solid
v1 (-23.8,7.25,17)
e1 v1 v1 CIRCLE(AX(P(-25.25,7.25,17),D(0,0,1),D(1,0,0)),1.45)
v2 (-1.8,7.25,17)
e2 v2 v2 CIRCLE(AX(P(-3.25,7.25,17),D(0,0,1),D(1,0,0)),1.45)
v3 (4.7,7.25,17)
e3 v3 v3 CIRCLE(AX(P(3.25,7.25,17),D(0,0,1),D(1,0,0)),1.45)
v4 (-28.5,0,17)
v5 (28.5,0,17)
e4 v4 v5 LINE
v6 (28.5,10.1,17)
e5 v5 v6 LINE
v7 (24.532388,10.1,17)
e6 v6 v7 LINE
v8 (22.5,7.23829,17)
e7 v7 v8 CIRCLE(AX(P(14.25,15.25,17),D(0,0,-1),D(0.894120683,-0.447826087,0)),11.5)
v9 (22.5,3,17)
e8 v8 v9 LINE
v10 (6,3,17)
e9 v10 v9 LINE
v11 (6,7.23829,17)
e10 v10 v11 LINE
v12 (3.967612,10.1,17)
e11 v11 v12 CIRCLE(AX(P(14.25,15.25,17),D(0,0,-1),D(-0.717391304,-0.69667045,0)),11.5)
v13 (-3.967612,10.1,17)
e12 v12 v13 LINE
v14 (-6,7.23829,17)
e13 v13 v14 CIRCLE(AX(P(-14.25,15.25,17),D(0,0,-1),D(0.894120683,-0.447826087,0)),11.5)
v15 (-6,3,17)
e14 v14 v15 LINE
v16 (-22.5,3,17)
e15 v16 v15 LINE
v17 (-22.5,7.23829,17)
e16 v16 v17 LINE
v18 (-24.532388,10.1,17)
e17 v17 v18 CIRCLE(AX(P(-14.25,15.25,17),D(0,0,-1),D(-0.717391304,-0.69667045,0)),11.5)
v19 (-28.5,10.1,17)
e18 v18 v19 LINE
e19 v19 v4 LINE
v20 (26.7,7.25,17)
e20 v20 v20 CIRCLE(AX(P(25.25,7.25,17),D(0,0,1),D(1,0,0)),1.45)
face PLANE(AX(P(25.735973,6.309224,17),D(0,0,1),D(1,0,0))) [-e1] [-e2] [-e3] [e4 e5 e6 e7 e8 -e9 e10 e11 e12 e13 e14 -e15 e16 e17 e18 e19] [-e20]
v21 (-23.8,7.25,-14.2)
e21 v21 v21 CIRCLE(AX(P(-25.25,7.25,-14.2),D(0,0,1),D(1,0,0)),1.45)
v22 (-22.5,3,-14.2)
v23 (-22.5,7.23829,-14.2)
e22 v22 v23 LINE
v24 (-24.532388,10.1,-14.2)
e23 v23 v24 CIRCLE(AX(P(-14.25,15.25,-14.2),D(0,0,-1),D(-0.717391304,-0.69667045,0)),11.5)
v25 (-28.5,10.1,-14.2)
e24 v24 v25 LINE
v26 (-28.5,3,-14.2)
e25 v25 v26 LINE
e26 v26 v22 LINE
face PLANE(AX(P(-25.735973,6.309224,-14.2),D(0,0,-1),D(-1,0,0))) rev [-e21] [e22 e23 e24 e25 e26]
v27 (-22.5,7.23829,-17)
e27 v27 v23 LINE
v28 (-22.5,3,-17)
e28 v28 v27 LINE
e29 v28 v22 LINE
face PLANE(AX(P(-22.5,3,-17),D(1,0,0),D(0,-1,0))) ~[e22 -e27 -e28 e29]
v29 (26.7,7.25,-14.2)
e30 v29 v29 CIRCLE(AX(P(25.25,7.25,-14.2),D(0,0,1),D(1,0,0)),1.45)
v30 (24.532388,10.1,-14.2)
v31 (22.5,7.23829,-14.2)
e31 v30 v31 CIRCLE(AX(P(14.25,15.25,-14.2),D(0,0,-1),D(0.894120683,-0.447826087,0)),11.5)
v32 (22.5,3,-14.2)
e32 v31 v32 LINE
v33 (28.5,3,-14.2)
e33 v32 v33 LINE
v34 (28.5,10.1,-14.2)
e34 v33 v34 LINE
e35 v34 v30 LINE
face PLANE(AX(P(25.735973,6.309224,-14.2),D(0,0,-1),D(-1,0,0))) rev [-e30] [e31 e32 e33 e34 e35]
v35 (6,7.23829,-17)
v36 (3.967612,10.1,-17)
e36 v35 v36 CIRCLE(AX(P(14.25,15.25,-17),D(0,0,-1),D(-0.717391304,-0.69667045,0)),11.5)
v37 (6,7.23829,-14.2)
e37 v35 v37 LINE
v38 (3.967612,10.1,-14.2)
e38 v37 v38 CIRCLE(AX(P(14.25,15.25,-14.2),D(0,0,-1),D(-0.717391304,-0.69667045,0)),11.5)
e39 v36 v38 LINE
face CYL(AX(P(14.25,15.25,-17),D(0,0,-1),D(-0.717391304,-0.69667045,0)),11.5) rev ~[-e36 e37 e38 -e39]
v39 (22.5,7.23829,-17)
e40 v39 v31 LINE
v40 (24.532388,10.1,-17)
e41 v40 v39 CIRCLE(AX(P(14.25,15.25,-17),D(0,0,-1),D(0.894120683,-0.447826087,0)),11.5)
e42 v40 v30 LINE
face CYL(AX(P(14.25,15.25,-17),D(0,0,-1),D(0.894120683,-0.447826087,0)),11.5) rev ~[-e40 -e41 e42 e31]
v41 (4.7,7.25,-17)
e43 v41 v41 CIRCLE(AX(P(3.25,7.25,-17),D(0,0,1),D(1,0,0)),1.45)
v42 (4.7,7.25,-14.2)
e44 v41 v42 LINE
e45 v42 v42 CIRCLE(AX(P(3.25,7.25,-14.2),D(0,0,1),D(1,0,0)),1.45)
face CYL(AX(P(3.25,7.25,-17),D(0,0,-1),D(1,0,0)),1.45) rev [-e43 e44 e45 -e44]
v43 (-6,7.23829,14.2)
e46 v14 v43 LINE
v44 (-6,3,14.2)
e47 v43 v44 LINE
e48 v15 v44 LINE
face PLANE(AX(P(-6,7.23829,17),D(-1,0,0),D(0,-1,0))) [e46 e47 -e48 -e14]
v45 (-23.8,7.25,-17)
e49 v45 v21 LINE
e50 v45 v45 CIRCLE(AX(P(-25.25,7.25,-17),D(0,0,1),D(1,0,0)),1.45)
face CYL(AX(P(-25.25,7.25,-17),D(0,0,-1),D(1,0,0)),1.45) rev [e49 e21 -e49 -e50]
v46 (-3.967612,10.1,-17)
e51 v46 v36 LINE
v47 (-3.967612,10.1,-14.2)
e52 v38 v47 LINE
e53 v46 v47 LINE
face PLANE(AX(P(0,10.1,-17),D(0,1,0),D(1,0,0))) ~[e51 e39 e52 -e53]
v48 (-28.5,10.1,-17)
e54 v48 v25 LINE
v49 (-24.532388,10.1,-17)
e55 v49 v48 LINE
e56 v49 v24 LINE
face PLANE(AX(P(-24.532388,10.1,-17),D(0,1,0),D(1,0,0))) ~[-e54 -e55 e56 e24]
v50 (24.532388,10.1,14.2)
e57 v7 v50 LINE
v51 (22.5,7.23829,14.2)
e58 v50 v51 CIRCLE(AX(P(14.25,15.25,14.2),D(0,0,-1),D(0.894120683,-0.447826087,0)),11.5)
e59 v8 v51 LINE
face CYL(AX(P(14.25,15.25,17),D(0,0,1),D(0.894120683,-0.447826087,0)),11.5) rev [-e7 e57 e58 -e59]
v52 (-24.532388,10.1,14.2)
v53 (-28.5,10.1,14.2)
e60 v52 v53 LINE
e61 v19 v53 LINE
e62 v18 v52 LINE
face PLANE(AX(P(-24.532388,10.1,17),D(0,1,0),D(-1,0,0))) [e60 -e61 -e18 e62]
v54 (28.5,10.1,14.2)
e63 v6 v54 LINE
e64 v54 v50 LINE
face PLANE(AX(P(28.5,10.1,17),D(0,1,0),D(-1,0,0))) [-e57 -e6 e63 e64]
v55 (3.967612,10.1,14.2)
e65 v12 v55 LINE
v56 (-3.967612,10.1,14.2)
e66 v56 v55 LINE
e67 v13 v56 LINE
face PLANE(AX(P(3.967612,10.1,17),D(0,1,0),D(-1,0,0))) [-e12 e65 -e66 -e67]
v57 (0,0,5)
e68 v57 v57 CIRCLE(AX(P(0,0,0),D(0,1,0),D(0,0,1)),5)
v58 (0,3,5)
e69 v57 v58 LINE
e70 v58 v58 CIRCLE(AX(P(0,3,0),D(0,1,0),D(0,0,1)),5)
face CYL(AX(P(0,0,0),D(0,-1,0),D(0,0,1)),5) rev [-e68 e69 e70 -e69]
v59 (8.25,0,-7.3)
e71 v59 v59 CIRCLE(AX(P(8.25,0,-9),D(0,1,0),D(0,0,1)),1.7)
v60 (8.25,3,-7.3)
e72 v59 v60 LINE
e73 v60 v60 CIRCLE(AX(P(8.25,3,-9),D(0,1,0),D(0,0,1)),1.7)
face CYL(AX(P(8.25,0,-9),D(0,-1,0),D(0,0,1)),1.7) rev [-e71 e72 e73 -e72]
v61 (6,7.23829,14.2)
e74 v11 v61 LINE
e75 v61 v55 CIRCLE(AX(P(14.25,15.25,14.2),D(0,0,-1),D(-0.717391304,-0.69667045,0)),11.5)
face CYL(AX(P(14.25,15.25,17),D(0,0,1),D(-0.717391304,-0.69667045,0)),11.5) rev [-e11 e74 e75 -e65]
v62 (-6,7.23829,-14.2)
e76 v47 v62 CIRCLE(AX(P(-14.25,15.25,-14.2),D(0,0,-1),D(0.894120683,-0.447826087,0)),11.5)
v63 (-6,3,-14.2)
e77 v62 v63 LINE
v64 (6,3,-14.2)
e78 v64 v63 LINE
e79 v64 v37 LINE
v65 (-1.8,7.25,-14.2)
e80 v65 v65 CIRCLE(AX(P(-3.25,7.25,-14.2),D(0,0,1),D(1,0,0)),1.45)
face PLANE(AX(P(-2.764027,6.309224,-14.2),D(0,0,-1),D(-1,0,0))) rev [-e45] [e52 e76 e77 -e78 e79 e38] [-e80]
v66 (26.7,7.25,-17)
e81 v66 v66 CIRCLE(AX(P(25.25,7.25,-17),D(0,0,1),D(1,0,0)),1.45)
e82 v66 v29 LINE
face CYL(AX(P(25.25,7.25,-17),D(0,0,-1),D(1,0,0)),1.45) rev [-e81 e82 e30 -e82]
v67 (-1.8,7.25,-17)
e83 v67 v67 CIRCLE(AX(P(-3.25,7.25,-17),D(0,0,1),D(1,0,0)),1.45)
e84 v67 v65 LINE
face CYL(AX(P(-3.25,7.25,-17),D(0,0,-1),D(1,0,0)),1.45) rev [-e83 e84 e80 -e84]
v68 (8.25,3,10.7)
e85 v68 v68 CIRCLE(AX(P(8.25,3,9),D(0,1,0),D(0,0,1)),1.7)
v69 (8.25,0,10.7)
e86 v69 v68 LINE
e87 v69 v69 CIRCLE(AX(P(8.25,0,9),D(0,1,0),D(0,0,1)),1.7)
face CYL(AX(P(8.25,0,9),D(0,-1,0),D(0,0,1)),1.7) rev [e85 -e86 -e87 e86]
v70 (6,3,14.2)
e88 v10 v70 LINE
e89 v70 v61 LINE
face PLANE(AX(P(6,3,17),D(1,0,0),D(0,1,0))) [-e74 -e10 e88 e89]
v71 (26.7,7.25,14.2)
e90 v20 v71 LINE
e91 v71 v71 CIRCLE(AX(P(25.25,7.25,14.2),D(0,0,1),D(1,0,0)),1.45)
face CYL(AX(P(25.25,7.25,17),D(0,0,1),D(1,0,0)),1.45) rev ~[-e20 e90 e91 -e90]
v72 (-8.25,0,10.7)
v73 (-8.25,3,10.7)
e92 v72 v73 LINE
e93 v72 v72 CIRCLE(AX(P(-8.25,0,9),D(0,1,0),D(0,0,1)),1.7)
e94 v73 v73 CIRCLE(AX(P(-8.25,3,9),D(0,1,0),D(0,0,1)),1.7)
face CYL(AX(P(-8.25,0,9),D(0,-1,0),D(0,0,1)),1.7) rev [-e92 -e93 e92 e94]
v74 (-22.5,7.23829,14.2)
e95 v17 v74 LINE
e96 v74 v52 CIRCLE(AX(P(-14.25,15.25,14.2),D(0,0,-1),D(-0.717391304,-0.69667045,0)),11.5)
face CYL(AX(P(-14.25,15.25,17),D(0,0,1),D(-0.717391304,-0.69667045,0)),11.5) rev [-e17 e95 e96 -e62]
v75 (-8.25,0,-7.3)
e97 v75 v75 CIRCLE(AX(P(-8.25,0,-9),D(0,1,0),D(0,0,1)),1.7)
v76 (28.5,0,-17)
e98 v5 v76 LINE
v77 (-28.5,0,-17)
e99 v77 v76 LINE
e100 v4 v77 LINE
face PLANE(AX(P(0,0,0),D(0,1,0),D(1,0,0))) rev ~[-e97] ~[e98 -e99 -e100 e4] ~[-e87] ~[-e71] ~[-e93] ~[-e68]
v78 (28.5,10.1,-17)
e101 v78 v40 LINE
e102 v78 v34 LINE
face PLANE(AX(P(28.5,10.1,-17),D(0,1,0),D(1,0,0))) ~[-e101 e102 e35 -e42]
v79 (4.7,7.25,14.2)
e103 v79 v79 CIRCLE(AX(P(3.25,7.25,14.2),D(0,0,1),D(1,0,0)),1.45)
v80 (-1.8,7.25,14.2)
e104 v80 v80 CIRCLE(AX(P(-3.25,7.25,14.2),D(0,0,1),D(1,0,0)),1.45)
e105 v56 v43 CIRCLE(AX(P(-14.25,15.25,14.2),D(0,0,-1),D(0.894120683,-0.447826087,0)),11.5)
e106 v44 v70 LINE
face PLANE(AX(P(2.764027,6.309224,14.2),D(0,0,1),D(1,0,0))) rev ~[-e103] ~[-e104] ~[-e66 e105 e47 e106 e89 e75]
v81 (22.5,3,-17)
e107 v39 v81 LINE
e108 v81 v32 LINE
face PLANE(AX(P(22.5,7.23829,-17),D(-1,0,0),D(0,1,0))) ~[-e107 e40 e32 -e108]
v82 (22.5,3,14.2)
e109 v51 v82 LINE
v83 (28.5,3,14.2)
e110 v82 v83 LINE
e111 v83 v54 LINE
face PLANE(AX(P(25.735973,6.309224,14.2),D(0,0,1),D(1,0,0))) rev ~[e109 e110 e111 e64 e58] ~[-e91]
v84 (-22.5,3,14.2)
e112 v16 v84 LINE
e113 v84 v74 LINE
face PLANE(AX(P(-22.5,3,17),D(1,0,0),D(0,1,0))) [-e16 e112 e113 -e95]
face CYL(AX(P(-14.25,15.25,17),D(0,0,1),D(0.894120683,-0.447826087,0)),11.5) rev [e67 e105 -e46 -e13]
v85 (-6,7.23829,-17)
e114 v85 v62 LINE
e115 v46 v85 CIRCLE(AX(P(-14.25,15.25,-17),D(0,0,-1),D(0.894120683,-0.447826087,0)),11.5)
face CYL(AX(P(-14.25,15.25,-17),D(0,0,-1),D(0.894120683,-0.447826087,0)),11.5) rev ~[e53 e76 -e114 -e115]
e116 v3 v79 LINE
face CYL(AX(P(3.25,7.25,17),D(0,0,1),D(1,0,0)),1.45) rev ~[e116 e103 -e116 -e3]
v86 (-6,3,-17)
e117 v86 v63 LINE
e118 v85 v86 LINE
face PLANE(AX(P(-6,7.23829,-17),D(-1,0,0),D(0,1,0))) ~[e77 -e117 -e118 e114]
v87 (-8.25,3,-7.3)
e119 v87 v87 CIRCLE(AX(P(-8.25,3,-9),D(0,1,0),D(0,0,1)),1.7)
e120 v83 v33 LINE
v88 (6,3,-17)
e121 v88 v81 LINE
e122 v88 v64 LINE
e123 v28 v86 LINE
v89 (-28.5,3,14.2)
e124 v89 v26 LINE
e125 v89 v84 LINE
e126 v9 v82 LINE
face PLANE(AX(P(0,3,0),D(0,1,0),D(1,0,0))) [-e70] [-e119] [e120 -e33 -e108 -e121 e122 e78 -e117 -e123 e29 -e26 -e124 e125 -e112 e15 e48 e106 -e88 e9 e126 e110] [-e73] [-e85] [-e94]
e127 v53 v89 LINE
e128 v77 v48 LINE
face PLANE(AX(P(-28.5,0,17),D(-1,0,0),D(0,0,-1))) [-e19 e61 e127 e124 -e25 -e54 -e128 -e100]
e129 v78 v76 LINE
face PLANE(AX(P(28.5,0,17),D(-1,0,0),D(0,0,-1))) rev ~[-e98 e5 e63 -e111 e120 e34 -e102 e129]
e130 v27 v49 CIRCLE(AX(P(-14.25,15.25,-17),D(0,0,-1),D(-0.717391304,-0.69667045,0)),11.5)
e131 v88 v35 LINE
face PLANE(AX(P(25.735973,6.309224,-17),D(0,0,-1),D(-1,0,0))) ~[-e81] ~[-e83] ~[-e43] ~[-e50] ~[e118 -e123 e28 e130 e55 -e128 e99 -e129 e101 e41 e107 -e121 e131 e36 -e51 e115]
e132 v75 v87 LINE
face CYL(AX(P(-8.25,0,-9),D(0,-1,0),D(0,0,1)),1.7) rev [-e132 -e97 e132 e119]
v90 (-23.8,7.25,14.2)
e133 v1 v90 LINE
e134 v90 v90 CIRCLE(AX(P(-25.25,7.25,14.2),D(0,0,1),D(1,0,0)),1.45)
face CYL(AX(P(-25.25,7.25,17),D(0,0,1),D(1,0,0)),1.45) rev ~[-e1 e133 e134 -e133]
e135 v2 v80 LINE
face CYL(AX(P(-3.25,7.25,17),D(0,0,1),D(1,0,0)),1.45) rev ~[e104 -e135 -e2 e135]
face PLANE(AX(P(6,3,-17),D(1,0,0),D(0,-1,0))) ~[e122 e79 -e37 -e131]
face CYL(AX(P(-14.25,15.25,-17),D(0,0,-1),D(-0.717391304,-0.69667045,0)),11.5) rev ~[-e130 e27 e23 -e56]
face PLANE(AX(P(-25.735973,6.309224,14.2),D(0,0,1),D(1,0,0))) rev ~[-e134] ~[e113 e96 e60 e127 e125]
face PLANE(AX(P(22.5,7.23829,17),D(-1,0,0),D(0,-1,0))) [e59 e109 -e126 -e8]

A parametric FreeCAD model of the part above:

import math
import FreeCAD as App
import Part
import Sketcher

V = App.Vector
Q = App.Units.Quantity


def add_polygon(sketch, points):
    """Adds a closed chain of lines whose ends are joined by coincident constraints."""
    first, n = sketch.GeometryCount, len(points)
    for a, b in zip(points, points[1:] + points[:1]):
        sketch.addGeometry(Part.LineSegment(App.Vector(*a, 0), App.Vector(*b, 0)), False)
    for i in range(n):
        sketch.addConstraint(Sketcher.Constraint("Coincident", first + i, 2, first + (i + 1) % n, 1))

doc = App.newDocument("Part")
body = doc.addObject("PartDesign::Body", "Body")

sketch1 = body.newObject("Sketcher::SketchObject", "Sketch")
sketch1.AttachmentSupport = (doc.getObject("XZ_Plane"), [""])
sketch1.MapMode = "FlatFace"
add_polygon(sketch1, [(-28.5, -17), (-28.5, 17), (28.5, 17), (28.5, -17)])
sketch1.addGeometry(Part.Circle(V(-8.2, 9, 0), V(0, 0, 1), 1.7), False)
sketch1.addGeometry(Part.Circle(V(8.2, 9, 0), V(0, 0, 1), 1.7), False)
sketch1.addGeometry(Part.Circle(V(-8.2, -9, 0), V(0, 0, 1), 1.7), False)
sketch1.addGeometry(Part.Circle(V(0, 0, 0), V(0, 0, 1), 5), False)
sketch1.addGeometry(Part.Circle(V(8.2, -9, 0), V(0, 0, 1), 1.7), False)
sketch1.addConstraint(Sketcher.Constraint("Vertical", 0))
sketch1.addConstraint(Sketcher.Constraint("Horizontal", 1))
sketch1.addConstraint(Sketcher.Constraint("Vertical", 2))
sketch1.addConstraint(Sketcher.Constraint("Horizontal", 3))
sketch1.addConstraint(Sketcher.Constraint("Coincident", 7, 3, -1, 1))
sketch1.addConstraint(Sketcher.Constraint("Equal", 4, 5))
sketch1.addConstraint(Sketcher.Constraint("Equal", 5, 6))
sketch1.addConstraint(Sketcher.Constraint("Equal", 6, 8))
sketch1.addConstraint(Sketcher.Constraint("Symmetric", 5, 3, 6, 3, -1, 1))
sketch1.addConstraint(Sketcher.Constraint("Symmetric", 4, 3, 8, 3, -1, 1))
sketch1.addConstraint(Sketcher.Constraint("Symmetric", 0, 2, 2, 2, -1, 1))
sketch1.addConstraint(Sketcher.Constraint("Symmetric", 4, 3, 5, 3, -2))
sketch1.addConstraint(Sketcher.Constraint("Diameter", 7, Q("10 mm")))
sketch1.addConstraint(Sketcher.Constraint("Diameter", 4, Q("3.4 mm")))
sketch1.addConstraint(Sketcher.Constraint("DistanceX", 1, 1, 1, 2, Q("57 mm")))
sketch1.addConstraint(Sketcher.Constraint("DistanceY", 0, 1, 0, 2, Q("34 mm")))
sketch1.addConstraint(Sketcher.Constraint("DistanceY", -1, 1, 4, 3, Q("9 mm")))
sketch1.addConstraint(Sketcher.Constraint("DistanceX", 4, 3, 5, 3, Q("16.5 mm")))
pad1 = body.newObject("PartDesign::Pad", "Pad")
pad1.Profile = sketch1
pad1.Length = 3
pad1.Reversed = True

sketch2 = body.newObject("Sketcher::SketchObject", "Sketch001")
sketch2.AttachmentSupport = (doc.getObject("XY_Plane"), [""])
sketch2.MapMode = "FlatFace"
sketch2.AttachmentOffset = App.Placement(V(0, 0, 17), App.Rotation())
sketch2.addGeometry(Part.LineSegment(V(22.5, 7.2, 0), V(22.5, 3, 0)), False)
sketch2.addGeometry(Part.LineSegment(V(22.5, 3, 0), V(28.5, 3, 0)), False)
sketch2.addGeometry(Part.LineSegment(V(28.5, 3, 0), V(28.5, 10.1, 0)), False)
sketch2.addGeometry(Part.LineSegment(V(28.5, 10.1, 0), V(24.5, 10.1, 0)), False)
sketch2.addGeometry(Part.ArcOfCircle(Part.Circle(V(14.2, 15.3, 0), V(0, 0, 1), 11.5), math.radians(-44.16), math.radians(-26.6)), False)
sketch2.addGeometry(Part.Circle(V(25.2, 7.2, 0), V(0, 0, 1), 1.4), False)
sketch2.addGeometry(Part.LineSegment(V(4, 10.1, 0), V(-4, 10.1, 0)), False)
sketch2.addGeometry(Part.ArcOfCircle(Part.Circle(V(-14.3, 15.3, 0), V(0, 0, 1), 11.5), math.radians(-44.16), math.radians(-26.6)), False)
sketch2.addGeometry(Part.LineSegment(V(-6, 7.2, 0), V(-6, 3, 0)), False)
sketch2.addGeometry(Part.LineSegment(V(-6, 3, 0), V(6, 3, 0)), False)
sketch2.addGeometry(Part.LineSegment(V(6, 3, 0), V(6, 7.2, 0)), False)
sketch2.addGeometry(Part.ArcOfCircle(Part.Circle(V(14.3, 15.3, 0), V(0, 0, 1), 11.5), math.radians(-153.4), math.radians(-135.84)), False)
sketch2.addGeometry(Part.Circle(V(3.2, 7.2, 0), V(0, 0, 1), 1.4), False)
sketch2.addGeometry(Part.Circle(V(-3.2, 7.2, 0), V(0, 0, 1), 1.4), False)
sketch2.addGeometry(Part.LineSegment(V(-28.5, 10.1, 0), V(-28.5, 3, 0)), False)
sketch2.addGeometry(Part.LineSegment(V(-28.5, 3, 0), V(-22.5, 3, 0)), False)
sketch2.addGeometry(Part.LineSegment(V(-22.5, 3, 0), V(-22.5, 7.2, 0)), False)
sketch2.addGeometry(Part.ArcOfCircle(Part.Circle(V(-14.2, 15.3, 0), V(0, 0, 1), 11.5), math.radians(-153.4), math.radians(-135.84)), False)
sketch2.addGeometry(Part.LineSegment(V(-24.5, 10.1, 0), V(-28.5, 10.1, 0)), False)
sketch2.addGeometry(Part.Circle(V(-25.2, 7.2, 0), V(0, 0, 1), 1.4), False)
sketch2.addConstraint(Sketcher.Constraint("Coincident", 0, 2, 1, 1))
sketch2.addConstraint(Sketcher.Constraint("Coincident", 1, 2, 2, 1))
sketch2.addConstraint(Sketcher.Constraint("Coincident", 2, 2, 3, 1))
sketch2.addConstraint(Sketcher.Constraint("Coincident", 3, 2, 4, 2))
sketch2.addConstraint(Sketcher.Constraint("Coincident", 4, 1, 0, 1))
sketch2.addConstraint(Sketcher.Constraint("Coincident", 6, 2, 7, 2))
sketch2.addConstraint(Sketcher.Constraint("Coincident", 7, 1, 8, 1))
sketch2.addConstraint(Sketcher.Constraint("Coincident", 8, 2, 9, 1))
sketch2.addConstraint(Sketcher.Constraint("Coincident", 9, 2, 10, 1))
sketch2.addConstraint(Sketcher.Constraint("Coincident", 10, 2, 11, 2))
sketch2.addConstraint(Sketcher.Constraint("Coincident", 11, 1, 6, 1))
sketch2.addConstraint(Sketcher.Constraint("Coincident", 14, 2, 15, 1))
sketch2.addConstraint(Sketcher.Constraint("Coincident", 15, 2, 16, 1))
sketch2.addConstraint(Sketcher.Constraint("Coincident", 16, 2, 17, 2))
sketch2.addConstraint(Sketcher.Constraint("Coincident", 17, 1, 18, 1))
sketch2.addConstraint(Sketcher.Constraint("Coincident", 18, 2, 14, 1))
sketch2.addConstraint(Sketcher.Constraint("Vertical", 0))
sketch2.addConstraint(Sketcher.Constraint("Horizontal", 1))
sketch2.addConstraint(Sketcher.Constraint("Vertical", 2))
sketch2.addConstraint(Sketcher.Constraint("Horizontal", 3))
sketch2.addConstraint(Sketcher.Constraint("Horizontal", 6))
sketch2.addConstraint(Sketcher.Constraint("Vertical", 8))
sketch2.addConstraint(Sketcher.Constraint("Horizontal", 9))
sketch2.addConstraint(Sketcher.Constraint("Vertical", 10))
sketch2.addConstraint(Sketcher.Constraint("Vertical", 14))
sketch2.addConstraint(Sketcher.Constraint("Horizontal", 15))
sketch2.addConstraint(Sketcher.Constraint("Vertical", 16))
sketch2.addConstraint(Sketcher.Constraint("Horizontal", 18))
sketch2.addConstraint(Sketcher.Constraint("Coincident", 11, 3, 4, 3))
sketch2.addConstraint(Sketcher.Constraint("Coincident", 17, 3, 7, 3))
sketch2.addConstraint(Sketcher.Constraint("Equal", 4, 7))
sketch2.addConstraint(Sketcher.Constraint("Equal", 7, 11))
sketch2.addConstraint(Sketcher.Constraint("Equal", 5, 12))
sketch2.addConstraint(Sketcher.Constraint("Equal", 12, 13))
sketch2.addConstraint(Sketcher.Constraint("Equal", 11, 17))
sketch2.addConstraint(Sketcher.Constraint("Equal", 13, 19))
sketch2.addConstraint(Sketcher.Constraint("Symmetric", 4, 3, 7, 3, -2))
sketch2.addConstraint(Sketcher.Constraint("Symmetric", 12, 3, 13, 3, -2))
sketch2.addConstraint(Sketcher.Constraint("Symmetric", 5, 3, 19, 3, -2))
sketch2.addConstraint(Sketcher.Constraint("Symmetric", 1, 2, 14, 2, -2))
sketch2.addConstraint(Sketcher.Constraint("Horizontal", 5, 3, 12, 3))
sketch2.addConstraint(Sketcher.Constraint("Horizontal", 3, 2, 6, 2))
sketch2.addConstraint(Sketcher.Constraint("Horizontal", 4, 1, 7, 1))
sketch2.addConstraint(Sketcher.Constraint("Horizontal", 1, 2, 8, 2))
sketch2.addConstraint(Sketcher.Constraint("Horizontal", 7, 1, 10, 2))
sketch2.addConstraint(Sketcher.Constraint("Horizontal", 10, 2, 16, 2))
sketch2.addConstraint(Sketcher.Constraint("Horizontal", 11, 1, 17, 1))
sketch2.addConstraint(Sketcher.Constraint("Diameter", 5, Q("2.9 mm")))
sketch2.addConstraint(Sketcher.Constraint("Radius", 4, Q("11.5 mm")))
sketch2.addConstraint(Sketcher.Constraint("DistanceX", 1, 1, 1, 2, Q("6 mm")))
sketch2.addConstraint(Sketcher.Constraint("DistanceX", 9, 1, 9, 2, Q("12 mm")))
sketch2.addConstraint(Sketcher.Constraint("DistanceY", 2, 1, 2, 2, Q("7.1 mm")))
sketch2.addConstraint(Sketcher.Constraint("DistanceY", -1, 1, 0, 2, Q("3 mm")))
sketch2.addConstraint(Sketcher.Constraint("DistanceX", 4, 3, 5, 3, Q("11 mm")))
sketch2.addConstraint(Sketcher.Constraint("DistanceY", 5, 3, 4, 3, Q("8 mm")))
sketch2.addConstraint(Sketcher.Constraint("DistanceX", 12, 3, 4, 3, Q("11 mm")))
sketch2.addConstraint(Sketcher.Constraint("DistanceX", -1, 1, 0, 2, Q("22.5 mm")))
sketch2.addConstraint(Sketcher.Constraint("DistanceY", -1, 1, 4, 3, Q("15.25 mm")))
pad2 = body.newObject("PartDesign::Pad", "Pad001")
pad2.Profile = sketch2
pad2.Length = 2.8
pad2.Reversed = True
doc.recompute()

mirrored = body.newObject("PartDesign::Mirrored", "Mirrored")
mirrored.Originals = [pad2]
mirrored.MirrorPlane = (doc.getObject("XY_Plane"), [""])
body.Tip = mirrored

doc.recompute()
